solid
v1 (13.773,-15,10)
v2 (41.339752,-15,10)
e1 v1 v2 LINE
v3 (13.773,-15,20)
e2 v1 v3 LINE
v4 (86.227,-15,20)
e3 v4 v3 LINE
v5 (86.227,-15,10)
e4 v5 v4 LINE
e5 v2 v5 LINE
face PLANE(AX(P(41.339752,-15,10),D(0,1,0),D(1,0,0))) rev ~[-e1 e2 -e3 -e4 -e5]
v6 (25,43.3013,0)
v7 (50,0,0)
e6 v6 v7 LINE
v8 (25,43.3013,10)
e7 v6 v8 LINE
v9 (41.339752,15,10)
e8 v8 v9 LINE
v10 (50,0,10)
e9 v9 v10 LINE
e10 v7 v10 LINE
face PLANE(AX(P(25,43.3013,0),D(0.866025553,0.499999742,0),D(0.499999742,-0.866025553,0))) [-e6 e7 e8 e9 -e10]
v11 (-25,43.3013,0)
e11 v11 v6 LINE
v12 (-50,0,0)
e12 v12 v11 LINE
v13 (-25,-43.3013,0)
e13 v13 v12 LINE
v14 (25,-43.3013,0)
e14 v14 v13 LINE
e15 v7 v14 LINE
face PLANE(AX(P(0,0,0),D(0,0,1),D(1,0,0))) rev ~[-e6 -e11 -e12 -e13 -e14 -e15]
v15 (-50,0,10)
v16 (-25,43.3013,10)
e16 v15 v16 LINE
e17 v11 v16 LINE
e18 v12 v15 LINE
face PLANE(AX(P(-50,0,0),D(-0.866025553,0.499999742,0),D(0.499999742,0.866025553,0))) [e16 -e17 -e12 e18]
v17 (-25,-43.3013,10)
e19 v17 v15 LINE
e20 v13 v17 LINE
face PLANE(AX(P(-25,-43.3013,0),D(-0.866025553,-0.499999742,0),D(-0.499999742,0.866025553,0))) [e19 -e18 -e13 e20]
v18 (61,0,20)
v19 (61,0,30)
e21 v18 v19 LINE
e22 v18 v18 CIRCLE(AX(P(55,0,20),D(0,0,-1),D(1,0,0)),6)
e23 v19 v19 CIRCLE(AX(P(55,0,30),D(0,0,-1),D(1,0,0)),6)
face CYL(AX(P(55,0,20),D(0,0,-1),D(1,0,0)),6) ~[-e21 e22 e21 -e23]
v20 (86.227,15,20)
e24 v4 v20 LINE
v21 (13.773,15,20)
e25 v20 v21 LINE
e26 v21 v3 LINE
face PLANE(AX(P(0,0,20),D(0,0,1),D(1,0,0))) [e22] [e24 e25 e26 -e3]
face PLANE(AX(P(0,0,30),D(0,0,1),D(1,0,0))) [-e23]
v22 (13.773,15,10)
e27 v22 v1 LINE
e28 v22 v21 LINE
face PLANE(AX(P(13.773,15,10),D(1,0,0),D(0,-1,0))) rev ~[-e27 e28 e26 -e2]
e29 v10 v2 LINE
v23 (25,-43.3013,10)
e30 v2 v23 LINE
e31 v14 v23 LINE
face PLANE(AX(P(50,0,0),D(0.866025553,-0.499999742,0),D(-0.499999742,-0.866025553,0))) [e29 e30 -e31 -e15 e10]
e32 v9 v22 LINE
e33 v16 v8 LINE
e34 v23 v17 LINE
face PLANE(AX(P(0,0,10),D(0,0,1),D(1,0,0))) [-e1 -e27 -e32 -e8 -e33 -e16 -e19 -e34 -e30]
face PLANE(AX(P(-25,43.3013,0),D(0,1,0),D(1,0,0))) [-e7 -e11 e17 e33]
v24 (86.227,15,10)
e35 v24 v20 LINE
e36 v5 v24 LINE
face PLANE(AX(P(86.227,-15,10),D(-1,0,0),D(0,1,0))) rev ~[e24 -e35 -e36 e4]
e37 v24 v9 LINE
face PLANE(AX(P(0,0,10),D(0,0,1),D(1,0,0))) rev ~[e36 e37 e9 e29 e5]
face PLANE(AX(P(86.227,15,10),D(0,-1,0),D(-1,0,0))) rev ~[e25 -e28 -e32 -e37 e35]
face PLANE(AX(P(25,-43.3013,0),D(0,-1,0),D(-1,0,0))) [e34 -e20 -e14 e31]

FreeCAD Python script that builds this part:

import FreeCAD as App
import Part
import Sketcher

V = App.Vector
Q = App.Units.Quantity

doc = App.newDocument("Part")
body = doc.addObject("PartDesign::Body", "Body")

# Sketch on XY plane
sketch1 = body.newObject("Sketcher::SketchObject", "Sketch")
sketch1.AttachmentSupport = (doc.getObject("XY_Plane"), [""])
sketch1.MapMode = "FlatFace"
sketch1.addGeometry([
    Part.LineSegment(V(25, -43.3013, 0), V(50, 0, 0)),  # 0
    Part.LineSegment(V(50, 0, 0), V(25, 43.3013, 0)),  # 1
    Part.LineSegment(V(25, 43.3013, 0), V(-25, 43.3013, 0)),  # 2
    Part.LineSegment(V(-25, 43.3013, 0), V(-50, 0, 0)),  # 3
    Part.LineSegment(V(-50, 0, 0), V(-25, -43.3013, 0)),  # 4
    Part.LineSegment(V(-25, -43.3013, 0), V(25, -43.3013, 0)),  # 5
], False)
sketch1.addConstraint([
    Sketcher.Constraint("Coincident", 0, 2, 1, 1),
    Sketcher.Constraint("Coincident", 1, 2, 2, 1),
    Sketcher.Constraint("Coincident", 2, 2, 3, 1),
    Sketcher.Constraint("Coincident", 3, 2, 4, 1),
    Sketcher.Constraint("Coincident", 4, 2, 5, 1),
    Sketcher.Constraint("Coincident", 5, 2, 0, 1),
    Sketcher.Constraint("Horizontal", 2),
    Sketcher.Constraint("Horizontal", 5),
    Sketcher.Constraint("Symmetric", 0, 2, 3, 2, -1, 1),
    Sketcher.Constraint("Symmetric", 1, 2, 4, 2, -1, 1),
    Sketcher.Constraint("PointOnObject", 0, 2, -1),
    Sketcher.Constraint("Parallel", 0, 3),
    Sketcher.Constraint("Vertical", 2, 2, 4, 2),
    Sketcher.Constraint("DistanceX", 2, 2, 2, 1, Q("50 mm")),
    Sketcher.Constraint("Distance", 0, Q("50 mm")),
    Sketcher.Constraint("DistanceX", -1, 1, 0, 2, Q("50 mm")),
])
pad1 = body.newObject("PartDesign::Pad", "Pad")
pad1.Profile = sketch1
pad1.Length = 10

# Sketch on XY plane
sketch2 = body.newObject("Sketcher::SketchObject", "Sketch001")
sketch2.AttachmentSupport = (doc.getObject("XY_Plane"), [""])
sketch2.MapMode = "FlatFace"
sketch2.AttachmentOffset = App.Placement(V(0, 0, 10), App.Rotation())
sketch2.addGeometry([
    Part.LineSegment(V(13.773, 15, 0), V(13.773, -15, 0)),
    Part.LineSegment(V(13.773, -15, 0), V(86.227, -15, 0)),
    Part.LineSegment(V(86.227, -15, 0), V(86.227, 15, 0)),
    Part.LineSegment(V(86.227, 15, 0), V(13.773, 15, 0)),
], False)
sketch2.addConstraint([
    Sketcher.Constraint("Coincident", 0, 2, 1, 1),
    Sketcher.Constraint("Coincident", 1, 2, 2, 1),
    Sketcher.Constraint("Coincident", 2, 2, 3, 1),
    Sketcher.Constraint("Coincident", 3, 2, 0, 1),
    Sketcher.Constraint("Vertical", 0),
    Sketcher.Constraint("Horizontal", 1),
    Sketcher.Constraint("Vertical", 2),
    Sketcher.Constraint("Horizontal", 3),
    Sketcher.Constraint("DistanceY", 0, 2, 0, 1, Q("30 mm")),
    Sketcher.Constraint("DistanceX", 1, 1, 1, 2, Q("72.454 mm")),
    Sketcher.Constraint("DistanceY", 0, 2, -1, 1, Q("15 mm")),
    Sketcher.Constraint("DistanceX", -1, 1, 0, 2, Q("13.773 mm")),
])
pad2 = body.newObject("PartDesign::Pad", "Pad001")
pad2.Profile = sketch2
pad2.Length = 10

# Sketch on XY plane
sketch3 = body.newObject("Sketcher::SketchObject", "Sketch002")
sketch3.AttachmentSupport = (doc.getObject("XY_Plane"), [""])
sketch3.MapMode = "FlatFace"
sketch3.AttachmentOffset = App.Placement(V(0, 0, 20), App.Rotation())
sketch3.addGeometry(Part.Circle(V(55, 0, 0), V(0, 0, 1), 6), False)
sketch3.addConstraint([
    Sketcher.Constraint("PointOnObject", 0, 3, -1),
    Sketcher.Constraint("Diameter", 0, Q("12 mm")),
    Sketcher.Constraint("DistanceX", -1, 1, 0, 3, Q("55 mm")),
])
pad3 = body.newObject("PartDesign::Pad", "Pad002")
pad3.Profile = sketch3
pad3.Length = 10

doc.recompute()
